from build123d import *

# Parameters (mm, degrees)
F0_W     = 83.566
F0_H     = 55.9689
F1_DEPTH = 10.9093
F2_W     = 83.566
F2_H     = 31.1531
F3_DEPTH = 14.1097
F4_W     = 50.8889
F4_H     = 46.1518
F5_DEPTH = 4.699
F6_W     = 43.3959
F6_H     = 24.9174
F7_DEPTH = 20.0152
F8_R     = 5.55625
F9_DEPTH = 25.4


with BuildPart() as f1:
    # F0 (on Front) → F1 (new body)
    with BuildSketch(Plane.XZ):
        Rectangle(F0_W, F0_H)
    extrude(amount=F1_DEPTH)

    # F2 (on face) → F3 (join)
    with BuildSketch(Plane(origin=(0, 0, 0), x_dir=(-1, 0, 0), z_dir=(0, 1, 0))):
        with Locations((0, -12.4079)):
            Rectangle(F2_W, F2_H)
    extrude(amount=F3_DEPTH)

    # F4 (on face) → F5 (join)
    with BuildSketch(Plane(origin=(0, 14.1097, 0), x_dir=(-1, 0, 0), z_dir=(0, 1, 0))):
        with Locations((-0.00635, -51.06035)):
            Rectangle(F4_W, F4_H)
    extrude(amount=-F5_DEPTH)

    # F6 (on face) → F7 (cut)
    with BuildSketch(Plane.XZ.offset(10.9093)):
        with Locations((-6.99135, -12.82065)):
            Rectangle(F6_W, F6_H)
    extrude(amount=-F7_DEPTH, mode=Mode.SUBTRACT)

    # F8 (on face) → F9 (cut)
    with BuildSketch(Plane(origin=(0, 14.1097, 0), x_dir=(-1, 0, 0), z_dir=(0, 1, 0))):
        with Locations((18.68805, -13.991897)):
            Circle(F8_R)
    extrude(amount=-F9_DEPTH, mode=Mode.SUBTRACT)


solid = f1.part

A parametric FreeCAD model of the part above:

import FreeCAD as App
import Part
import Sketcher

V = App.Vector
Q = App.Units.Quantity

doc = App.newDocument("Part")
body = doc.addObject("PartDesign::Body", "Body")

# Sketch on XZ plane
sketch1 = doc.addObject("Sketcher::SketchObject", "Sketch")
body.addObject(sketch1)
sketch1.AttachmentSupport = (doc.XZ_Plane, [""])
sketch1.MapMode = "FlatFace"
sketch1.addGeometry([
    Part.LineSegment(V(-41.783, 27.98445, 0), V(-41.783, -27.98445, 0)),
    Part.LineSegment(V(-41.783, -27.98445, 0), V(41.783, -27.98445, 0)),
    Part.LineSegment(V(41.783, -27.98445, 0), V(41.783, 27.98445, 0)),
    Part.LineSegment(V(41.783, 27.98445, 0), V(-41.783, 27.98445, 0)),
], False)
sketch1.addConstraint([
    Sketcher.Constraint("Coincident", 0, 2, 1, 1),
    Sketcher.Constraint("Coincident", 1, 2, 2, 1),
    Sketcher.Constraint("Coincident", 2, 2, 3, 1),
    Sketcher.Constraint("Coincident", 3, 2, 0, 1),
    Sketcher.Constraint("Vertical", 0),
    Sketcher.Constraint("Horizontal", 1),
    Sketcher.Constraint("Vertical", 2),
    Sketcher.Constraint("Horizontal", 3),
    Sketcher.Constraint("Symmetric", 0, 2, 2, 2, -1, 1),
    Sketcher.Constraint("DistanceX", 1, 1, 1, 2, Q("3.29 in")),
    Sketcher.Constraint("DistanceY", 0, 2, 0, 1, Q("2.2035 in")),
])
pad1 = doc.addObject("PartDesign::Pad", "Pad")
body.addObject(pad1)
pad1.Profile = sketch1
pad1.Length = Q("0.4295 in")

# Sketch on XZ plane
sketch2 = doc.addObject("Sketcher::SketchObject", "Sketch001")
body.addObject(sketch2)
sketch2.AttachmentSupport = (doc.XZ_Plane, [""])
sketch2.MapMode = "FlatFace"
sketch2.addGeometry([
    Part.LineSegment(V(41.783, 3.16865, 0), V(41.783, -27.98445, 0)),
    Part.LineSegment(V(41.783, -27.98445, 0), V(-41.783, -27.98445, 0)),
    Part.LineSegment(V(-41.783, -27.98445, 0), V(-41.783, 3.16865, 0)),
    Part.LineSegment(V(-41.783, 3.16865, 0), V(41.783, 3.16865, 0)),
], False)
sketch2.addConstraint([
    Sketcher.Constraint("Coincident", 0, 2, 1, 1),
    Sketcher.Constraint("Coincident", 1, 2, 2, 1),
    Sketcher.Constraint("Coincident", 2, 2, 3, 1),
    Sketcher.Constraint("Coincident", 3, 2, 0, 1),
    Sketcher.Constraint("Vertical", 0),
    Sketcher.Constraint("Horizontal", 1),
    Sketcher.Constraint("Vertical", 2),
    Sketcher.Constraint("Horizontal", 3),
    Sketcher.Constraint("DistanceX", 1, 2, 1, 1, Q("3.29 in")),
    Sketcher.Constraint("DistanceY", 0, 2, 0, 1, Q("1.2265 in")),
    Sketcher.Constraint("DistanceX", -1, 1, 0, 2, Q("1.645 in")),
    Sketcher.Constraint("DistanceY", 0, 2, -1, 1, 27.98445),
])
pad2 = doc.addObject("PartDesign::Pad", "Pad001")
body.addObject(pad2)
pad2.Profile = sketch2
pad2.Length = Q("0.5555 in")
pad2.Reversed = True

# Sketch on XZ plane
sketch3 = doc.addObject("Sketcher::SketchObject", "Sketch002")
body.addObject(sketch3)
sketch3.AttachmentSupport = (doc.XZ_Plane, [""])
sketch3.MapMode = "FlatFace"
sketch3.AttachmentOffset = App.Placement(V(0, 0, -0.5555 * 25.4), App.Rotation())
sketch3.addGeometry([
    Part.LineSegment(V(25.4508, -27.98445, 0), V(25.4508, -74.13625, 0)),
    Part.LineSegment(V(25.4508, -74.13625, 0), V(-25.4381, -74.13625, 0)),
    Part.LineSegment(V(-25.4381, -74.13625, 0), V(-25.4381, -27.98445, 0)),
    Part.LineSegment(V(-25.4381, -27.98445, 0), V(25.4508, -27.98445, 0)),
], False)
sketch3.addConstraint([
    Sketcher.Constraint("Coincident", 0, 2, 1, 1),
    Sketcher.Constraint("Coincident", 1, 2, 2, 1),
    Sketcher.Constraint("Coincident", 2, 2, 3, 1),
    Sketcher.Constraint("Coincident", 3, 2, 0, 1),
    Sketcher.Constraint("Vertical", 0),
    Sketcher.Constraint("Horizontal", 1),
    Sketcher.Constraint("Vertical", 2),
    Sketcher.Constraint("Horizontal", 3),
    Sketcher.Constraint("DistanceY", 0, 2, 0, 1, Q("1.817 in")),
    Sketcher.Constraint("DistanceX", 1, 2, 1, 1, Q("2.0035 in")),
    Sketcher.Constraint("DistanceX", -1, 1, 0, 2, Q("1.002 in")),
    Sketcher.Constraint("DistanceY", 0, 2, -1, 1, 74.13625),
])
pad3 = doc.addObject("PartDesign::Pad", "Pad002")
body.addObject(pad3)
pad3.Profile = sketch3
pad3.Length = Q("0.185 in")

# Sketch on XZ plane
sketch4 = doc.addObject("Sketcher::SketchObject", "Sketch003")
body.addObject(sketch4)
sketch4.AttachmentSupport = (doc.XZ_Plane, [""])
sketch4.MapMode = "FlatFace"
sketch4.AttachmentOffset = App.Placement(V(0, 0, 0.4295 * 25.4), App.Rotation())
sketch4.addGeometry([
    Part.LineSegment(V(-28.6893, -0.36195, 0), V(-28.6893, -25.27935, 0)),
    Part.LineSegment(V(-28.6893, -25.27935, 0), V(14.7066, -25.27935, 0)),
    Part.LineSegment(V(14.7066, -25.27935, 0), V(14.7066, -0.36195, 0)),
    Part.LineSegment(V(14.7066, -0.36195, 0), V(-28.6893, -0.36195, 0)),
], False)
sketch4.addConstraint([
    Sketcher.Constraint("Coincident", 0, 2, 1, 1),
    Sketcher.Constraint("Coincident", 1, 2, 2, 1),
    Sketcher.Constraint("Coincident", 2, 2, 3, 1),
    Sketcher.Constraint("Coincident", 3, 2, 0, 1),
    Sketcher.Constraint("Vertical", 0),
    Sketcher.Constraint("Horizontal", 1),
    Sketcher.Constraint("Vertical", 2),
    Sketcher.Constraint("Horizontal", 3),
    Sketcher.Constraint("DistanceY", 0, 2, 0, 1, Q("0.981 in")),
    Sketcher.Constraint("DistanceX", 1, 1, 1, 2, Q("1.7085 in")),
    Sketcher.Constraint("DistanceX", -1, 1, 1, 2, Q("0.579 in")),
    Sketcher.Constraint("DistanceY", 0, 2, -1, 1, 25.27935),
])
pocket1 = doc.addObject("PartDesign::Pocket", "Pocket")
body.addObject(pocket1)
pocket1.Profile = sketch4
pocket1.Length = Q("0.788 in")

# Sketch on XZ plane
sketch5 = doc.addObject("Sketcher::SketchObject", "Sketch004")
body.addObject(sketch5)
sketch5.AttachmentSupport = (doc.XZ_Plane, [""])
sketch5.MapMode = "FlatFace"
sketch5.AttachmentOffset = App.Placement(V(0, 0, -0.5555 * 25.4), App.Rotation())
sketch5.addGeometry(Part.Circle(V(-18.68805, -13.991897, 0), V(0, 0, 1), 5.55625), False)
sketch5.addConstraint([
    Sketcher.Constraint("Diameter", 0, Q("0.4375 in")),
    Sketcher.Constraint("DistanceX", 0, 3, -1, 1, 18.68805),
    Sketcher.Constraint("DistanceY", 0, 3, -1, 1, 13.991897),
])
pocket2 = doc.addObject("PartDesign::Pocket", "Pocket001")
body.addObject(pocket2)
pocket2.Profile = sketch5
pocket2.Length = Q("1 in")
pocket2.Reversed = True

doc.recompute()
